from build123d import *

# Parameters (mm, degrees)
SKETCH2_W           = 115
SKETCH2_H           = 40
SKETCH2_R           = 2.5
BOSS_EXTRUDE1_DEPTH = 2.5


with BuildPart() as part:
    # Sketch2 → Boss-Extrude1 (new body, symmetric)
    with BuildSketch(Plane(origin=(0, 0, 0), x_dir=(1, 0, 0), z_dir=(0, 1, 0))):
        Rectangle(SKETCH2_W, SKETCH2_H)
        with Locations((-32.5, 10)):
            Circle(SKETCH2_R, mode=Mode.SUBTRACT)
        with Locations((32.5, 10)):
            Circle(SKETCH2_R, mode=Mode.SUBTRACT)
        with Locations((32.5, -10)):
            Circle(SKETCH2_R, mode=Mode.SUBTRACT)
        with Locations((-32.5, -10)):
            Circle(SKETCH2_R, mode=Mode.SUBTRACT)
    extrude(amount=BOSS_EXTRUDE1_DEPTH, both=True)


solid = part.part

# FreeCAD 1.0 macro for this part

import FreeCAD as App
import Part
import Sketcher
from FreeCAD import Vector
Q = App.Units.Quantity

doc = App.newDocument("Part")
body = doc.addObject("PartDesign::Body", "Body")

# Sketch on XZ plane
sketch1 = body.newObject("Sketcher::SketchObject", "Sketch")
sketch1.AttachmentSupport = (doc.getObject("XZ_Plane"), [""])
sketch1.MapMode = "FlatFace"
sketch1.addGeometry([
    Part.LineSegment(Vector(-57.5, -20, 0), Vector(-57.5, 20, 0)),  # 0
    Part.LineSegment(Vector(-57.5, 20, 0), Vector(57.5, 20, 0)),  # 1
    Part.LineSegment(Vector(57.5, 20, 0), Vector(57.5, -20, 0)),  # 2
    Part.LineSegment(Vector(57.5, -20, 0), Vector(-57.5, -20, 0)),  # 3
    Part.Circle(Vector(-32.5, 10, 0), Vector(0, 0, 1), 2.5),  # 4
    Part.Circle(Vector(32.5, 10, 0), Vector(0, 0, 1), 2.5),  # 5
    Part.Circle(Vector(-32.5, -10, 0), Vector(0, 0, 1), 2.5),  # 6
    Part.Circle(Vector(32.5, -10, 0), Vector(0, 0, 1), 2.5),  # 7
], False)
sketch1.addConstraint([
    Sketcher.Constraint("Coincident", 0, 2, 1, 1),
    Sketcher.Constraint("Coincident", 1, 2, 2, 1),
    Sketcher.Constraint("Coincident", 2, 2, 3, 1),
    Sketcher.Constraint("Coincident", 3, 2, 0, 1),
    Sketcher.Constraint("Vertical", 0),
    Sketcher.Constraint("Horizontal", 1),
    Sketcher.Constraint("Vertical", 2),
    Sketcher.Constraint("Horizontal", 3),
    Sketcher.Constraint("Equal", 4, 5),
    Sketcher.Constraint("Equal", 5, 6),
    Sketcher.Constraint("Equal", 6, 7),
    Sketcher.Constraint("Symmetric", 5, 3, 6, 3, -1, 1),
    Sketcher.Constraint("Symmetric", 4, 3, 7, 3, -1, 1),
    Sketcher.Constraint("Symmetric", 0, 2, 2, 2, -1, 1),
    Sketcher.Constraint("Symmetric", 4, 3, 5, 3, -2),
    Sketcher.Constraint("Diameter", 4, Q("5 mm")),
    Sketcher.Constraint("DistanceX", 1, 1, 1, 2, Q("115 mm")),
    Sketcher.Constraint("DistanceY", 0, 1, 0, 2, Q("40 mm")),
    Sketcher.Constraint("DistanceY", -1, 1, 4, 3, Q("10 mm")),
    Sketcher.Constraint("DistanceX", 4, 3, 5, 3, Q("65 mm")),
])
pad1 = body.newObject("PartDesign::Pad", "Pad")
pad1.Profile = sketch1
pad1.Length = 5
pad1.Midplane = True

doc.recompute()
